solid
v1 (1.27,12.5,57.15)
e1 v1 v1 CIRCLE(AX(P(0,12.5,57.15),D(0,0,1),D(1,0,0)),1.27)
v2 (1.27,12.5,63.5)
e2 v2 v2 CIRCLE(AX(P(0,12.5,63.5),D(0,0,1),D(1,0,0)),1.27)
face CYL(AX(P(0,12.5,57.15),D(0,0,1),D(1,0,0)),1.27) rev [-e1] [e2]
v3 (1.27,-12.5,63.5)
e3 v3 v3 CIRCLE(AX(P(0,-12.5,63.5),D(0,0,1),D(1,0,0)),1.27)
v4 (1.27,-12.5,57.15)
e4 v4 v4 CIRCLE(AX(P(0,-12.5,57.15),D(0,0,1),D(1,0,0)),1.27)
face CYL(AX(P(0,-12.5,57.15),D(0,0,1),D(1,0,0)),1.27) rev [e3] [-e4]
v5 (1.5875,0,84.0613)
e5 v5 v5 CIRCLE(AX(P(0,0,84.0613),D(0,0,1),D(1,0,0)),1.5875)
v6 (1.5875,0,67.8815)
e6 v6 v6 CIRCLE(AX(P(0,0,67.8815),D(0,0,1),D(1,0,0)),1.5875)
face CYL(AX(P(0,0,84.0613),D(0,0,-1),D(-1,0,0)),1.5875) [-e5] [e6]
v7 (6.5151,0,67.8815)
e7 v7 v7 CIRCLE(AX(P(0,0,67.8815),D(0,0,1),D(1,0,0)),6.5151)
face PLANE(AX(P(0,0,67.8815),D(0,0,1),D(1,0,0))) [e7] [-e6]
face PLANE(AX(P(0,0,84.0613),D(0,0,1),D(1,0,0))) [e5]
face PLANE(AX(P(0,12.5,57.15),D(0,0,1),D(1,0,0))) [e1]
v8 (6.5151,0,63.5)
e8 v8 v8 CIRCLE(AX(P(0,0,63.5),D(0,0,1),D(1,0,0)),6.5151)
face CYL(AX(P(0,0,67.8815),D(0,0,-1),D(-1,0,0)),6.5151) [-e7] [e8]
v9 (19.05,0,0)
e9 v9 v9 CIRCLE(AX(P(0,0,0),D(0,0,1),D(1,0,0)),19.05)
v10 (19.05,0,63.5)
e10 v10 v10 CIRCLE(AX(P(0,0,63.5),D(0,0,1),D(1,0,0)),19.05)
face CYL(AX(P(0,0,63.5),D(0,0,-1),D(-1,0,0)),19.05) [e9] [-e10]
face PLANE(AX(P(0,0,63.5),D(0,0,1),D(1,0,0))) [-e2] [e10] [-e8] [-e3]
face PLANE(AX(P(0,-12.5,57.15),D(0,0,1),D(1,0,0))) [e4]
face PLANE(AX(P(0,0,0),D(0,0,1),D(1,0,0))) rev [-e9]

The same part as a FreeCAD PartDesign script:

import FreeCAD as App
import Part
import Sketcher
Q = App.Units.Quantity

doc = App.newDocument("Part")
body = doc.addObject("PartDesign::Body", "Body")

# Sketch on XY plane
sketch1 = doc.addObject("Sketcher::SketchObject", "Sketch")
body.addObject(sketch1)
sketch1.AttachmentSupport = (doc.XY_Plane, [""])
sketch1.MapMode = "FlatFace"
sketch1.addGeometry(Part.Circle(App.Vector(0, 0, 0), App.Vector(0, 0, 1), 19), False)
sketch1.addConstraint(Sketcher.Constraint("Coincident", 0, 3, -1, 1))
sketch1.addConstraint(Sketcher.Constraint("Diameter", 0, Q("1.5 in")))
pad1 = doc.addObject("PartDesign::Pad", "Pad")
body.addObject(pad1)
pad1.Profile = sketch1
pad1.Length = Q("2.5 in")

# Sketch on XY plane
sketch2 = doc.addObject("Sketcher::SketchObject", "Sketch001")
body.addObject(sketch2)
sketch2.AttachmentSupport = (doc.XY_Plane, [""])
sketch2.MapMode = "FlatFace"
sketch2.AttachmentOffset = App.Placement(App.Vector(0, 0, 2.5 * 25.4), App.Rotation())
sketch2.addGeometry(Part.Circle(App.Vector(0, 0, 0), App.Vector(0, 0, 1), 7), False)
sketch2.addConstraint(Sketcher.Constraint("Coincident", 0, 3, -1, 1))
sketch2.addConstraint(Sketcher.Constraint("Diameter", 0, Q("0.513 in")))
pad2 = doc.addObject("PartDesign::Pad", "Pad001")
body.addObject(pad2)
pad2.Profile = sketch2
pad2.Length = Q("0.1725 in")

# Sketch on XY plane
sketch3 = doc.addObject("Sketcher::SketchObject", "Sketch002")
body.addObject(sketch3)
sketch3.AttachmentSupport = (doc.XY_Plane, [""])
sketch3.MapMode = "FlatFace"
sketch3.AttachmentOffset = App.Placement(App.Vector(0, 0, 2.6725 * 25.4), App.Rotation())
sketch3.addGeometry(Part.Circle(App.Vector(0, 0, 0), App.Vector(0, 0, 1), 1.6), False)
sketch3.addConstraint(Sketcher.Constraint("Coincident", 0, 3, -1, 1))
sketch3.addConstraint(Sketcher.Constraint("Diameter", 0, Q("0.125 in")))
pad3 = doc.addObject("PartDesign::Pad", "Pad002")
body.addObject(pad3)
pad3.Profile = sketch3
pad3.Length = Q("0.637 in")

# Sketch on XY plane
sketch4 = doc.addObject("Sketcher::SketchObject", "Sketch003")
body.addObject(sketch4)
sketch4.AttachmentSupport = (doc.XY_Plane, [""])
sketch4.MapMode = "FlatFace"
sketch4.AttachmentOffset = App.Placement(App.Vector(0, 0, 2.5 * 25.4), App.Rotation())
sketch4.addGeometry(Part.Circle(App.Vector(0, 12.5, 0), App.Vector(0, 0, 1), 1.3), False)
sketch4.addGeometry(Part.Circle(App.Vector(0, -12.5, 0), App.Vector(0, 0, 1), 1.3), False)
sketch4.addConstraint(Sketcher.Constraint("Equal", 0, 1))
sketch4.addConstraint(Sketcher.Constraint("Symmetric", 0, 3, 1, 3, -1, 1))
sketch4.addConstraint(Sketcher.Constraint("PointOnObject", 0, 3, -2))
sketch4.addConstraint(Sketcher.Constraint("Diameter", 0, Q("0.1 in")))
sketch4.addConstraint(Sketcher.Constraint("DistanceY", -1, 1, 0, 3, Q("12.5 mm")))
pocket1 = doc.addObject("PartDesign::Pocket", "Pocket")
body.addObject(pocket1)
pocket1.Profile = sketch4
pocket1.Length = Q("0.25 in")

doc.recompute()
